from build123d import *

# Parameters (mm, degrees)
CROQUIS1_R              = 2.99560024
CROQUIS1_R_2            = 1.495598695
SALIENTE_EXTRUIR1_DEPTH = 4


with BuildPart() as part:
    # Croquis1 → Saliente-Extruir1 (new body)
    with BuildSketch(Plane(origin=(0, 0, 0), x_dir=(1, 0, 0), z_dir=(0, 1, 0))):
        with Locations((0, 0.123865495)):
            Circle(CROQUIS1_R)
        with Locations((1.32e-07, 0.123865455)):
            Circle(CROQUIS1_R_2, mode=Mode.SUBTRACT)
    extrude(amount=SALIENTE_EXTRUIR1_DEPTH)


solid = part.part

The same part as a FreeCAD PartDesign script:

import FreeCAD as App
import Part
import Sketcher
from FreeCAD import Vector
Q = App.Units.Quantity

doc = App.newDocument("Part")
body = doc.addObject("PartDesign::Body", "Body")

sketch1 = body.newObject("Sketcher::SketchObject", "Sketch")
sketch1.AttachmentSupport = (doc.getObject("XZ_Plane"), [""])
sketch1.MapMode = "FlatFace"
sketch1.addGeometry([
    Part.Circle(Vector(0, -0.123865, 0), Vector(0, 0, 1), 2.9956),
    Part.Circle(Vector(0, -0.123865, 0), Vector(0, 0, 1), 1.495599),
], False)
sketch1.addConstraint([
    Sketcher.Constraint("Coincident", 1, 3, 0, 3),
    Sketcher.Constraint("PointOnObject", 0, 3, -2),
    Sketcher.Constraint("Diameter", 0, Q("5.9912 mm")),
    Sketcher.Constraint("Diameter", 1, Q("2.991197 mm")),
    Sketcher.Constraint("DistanceY", 0, 3, -1, 1, Q("0.123865 mm")),
])
pad1 = body.newObject("PartDesign::Pad", "Pad")
pad1.Profile = sketch1
pad1.Length = 4
pad1.Reversed = True

doc.recompute()
